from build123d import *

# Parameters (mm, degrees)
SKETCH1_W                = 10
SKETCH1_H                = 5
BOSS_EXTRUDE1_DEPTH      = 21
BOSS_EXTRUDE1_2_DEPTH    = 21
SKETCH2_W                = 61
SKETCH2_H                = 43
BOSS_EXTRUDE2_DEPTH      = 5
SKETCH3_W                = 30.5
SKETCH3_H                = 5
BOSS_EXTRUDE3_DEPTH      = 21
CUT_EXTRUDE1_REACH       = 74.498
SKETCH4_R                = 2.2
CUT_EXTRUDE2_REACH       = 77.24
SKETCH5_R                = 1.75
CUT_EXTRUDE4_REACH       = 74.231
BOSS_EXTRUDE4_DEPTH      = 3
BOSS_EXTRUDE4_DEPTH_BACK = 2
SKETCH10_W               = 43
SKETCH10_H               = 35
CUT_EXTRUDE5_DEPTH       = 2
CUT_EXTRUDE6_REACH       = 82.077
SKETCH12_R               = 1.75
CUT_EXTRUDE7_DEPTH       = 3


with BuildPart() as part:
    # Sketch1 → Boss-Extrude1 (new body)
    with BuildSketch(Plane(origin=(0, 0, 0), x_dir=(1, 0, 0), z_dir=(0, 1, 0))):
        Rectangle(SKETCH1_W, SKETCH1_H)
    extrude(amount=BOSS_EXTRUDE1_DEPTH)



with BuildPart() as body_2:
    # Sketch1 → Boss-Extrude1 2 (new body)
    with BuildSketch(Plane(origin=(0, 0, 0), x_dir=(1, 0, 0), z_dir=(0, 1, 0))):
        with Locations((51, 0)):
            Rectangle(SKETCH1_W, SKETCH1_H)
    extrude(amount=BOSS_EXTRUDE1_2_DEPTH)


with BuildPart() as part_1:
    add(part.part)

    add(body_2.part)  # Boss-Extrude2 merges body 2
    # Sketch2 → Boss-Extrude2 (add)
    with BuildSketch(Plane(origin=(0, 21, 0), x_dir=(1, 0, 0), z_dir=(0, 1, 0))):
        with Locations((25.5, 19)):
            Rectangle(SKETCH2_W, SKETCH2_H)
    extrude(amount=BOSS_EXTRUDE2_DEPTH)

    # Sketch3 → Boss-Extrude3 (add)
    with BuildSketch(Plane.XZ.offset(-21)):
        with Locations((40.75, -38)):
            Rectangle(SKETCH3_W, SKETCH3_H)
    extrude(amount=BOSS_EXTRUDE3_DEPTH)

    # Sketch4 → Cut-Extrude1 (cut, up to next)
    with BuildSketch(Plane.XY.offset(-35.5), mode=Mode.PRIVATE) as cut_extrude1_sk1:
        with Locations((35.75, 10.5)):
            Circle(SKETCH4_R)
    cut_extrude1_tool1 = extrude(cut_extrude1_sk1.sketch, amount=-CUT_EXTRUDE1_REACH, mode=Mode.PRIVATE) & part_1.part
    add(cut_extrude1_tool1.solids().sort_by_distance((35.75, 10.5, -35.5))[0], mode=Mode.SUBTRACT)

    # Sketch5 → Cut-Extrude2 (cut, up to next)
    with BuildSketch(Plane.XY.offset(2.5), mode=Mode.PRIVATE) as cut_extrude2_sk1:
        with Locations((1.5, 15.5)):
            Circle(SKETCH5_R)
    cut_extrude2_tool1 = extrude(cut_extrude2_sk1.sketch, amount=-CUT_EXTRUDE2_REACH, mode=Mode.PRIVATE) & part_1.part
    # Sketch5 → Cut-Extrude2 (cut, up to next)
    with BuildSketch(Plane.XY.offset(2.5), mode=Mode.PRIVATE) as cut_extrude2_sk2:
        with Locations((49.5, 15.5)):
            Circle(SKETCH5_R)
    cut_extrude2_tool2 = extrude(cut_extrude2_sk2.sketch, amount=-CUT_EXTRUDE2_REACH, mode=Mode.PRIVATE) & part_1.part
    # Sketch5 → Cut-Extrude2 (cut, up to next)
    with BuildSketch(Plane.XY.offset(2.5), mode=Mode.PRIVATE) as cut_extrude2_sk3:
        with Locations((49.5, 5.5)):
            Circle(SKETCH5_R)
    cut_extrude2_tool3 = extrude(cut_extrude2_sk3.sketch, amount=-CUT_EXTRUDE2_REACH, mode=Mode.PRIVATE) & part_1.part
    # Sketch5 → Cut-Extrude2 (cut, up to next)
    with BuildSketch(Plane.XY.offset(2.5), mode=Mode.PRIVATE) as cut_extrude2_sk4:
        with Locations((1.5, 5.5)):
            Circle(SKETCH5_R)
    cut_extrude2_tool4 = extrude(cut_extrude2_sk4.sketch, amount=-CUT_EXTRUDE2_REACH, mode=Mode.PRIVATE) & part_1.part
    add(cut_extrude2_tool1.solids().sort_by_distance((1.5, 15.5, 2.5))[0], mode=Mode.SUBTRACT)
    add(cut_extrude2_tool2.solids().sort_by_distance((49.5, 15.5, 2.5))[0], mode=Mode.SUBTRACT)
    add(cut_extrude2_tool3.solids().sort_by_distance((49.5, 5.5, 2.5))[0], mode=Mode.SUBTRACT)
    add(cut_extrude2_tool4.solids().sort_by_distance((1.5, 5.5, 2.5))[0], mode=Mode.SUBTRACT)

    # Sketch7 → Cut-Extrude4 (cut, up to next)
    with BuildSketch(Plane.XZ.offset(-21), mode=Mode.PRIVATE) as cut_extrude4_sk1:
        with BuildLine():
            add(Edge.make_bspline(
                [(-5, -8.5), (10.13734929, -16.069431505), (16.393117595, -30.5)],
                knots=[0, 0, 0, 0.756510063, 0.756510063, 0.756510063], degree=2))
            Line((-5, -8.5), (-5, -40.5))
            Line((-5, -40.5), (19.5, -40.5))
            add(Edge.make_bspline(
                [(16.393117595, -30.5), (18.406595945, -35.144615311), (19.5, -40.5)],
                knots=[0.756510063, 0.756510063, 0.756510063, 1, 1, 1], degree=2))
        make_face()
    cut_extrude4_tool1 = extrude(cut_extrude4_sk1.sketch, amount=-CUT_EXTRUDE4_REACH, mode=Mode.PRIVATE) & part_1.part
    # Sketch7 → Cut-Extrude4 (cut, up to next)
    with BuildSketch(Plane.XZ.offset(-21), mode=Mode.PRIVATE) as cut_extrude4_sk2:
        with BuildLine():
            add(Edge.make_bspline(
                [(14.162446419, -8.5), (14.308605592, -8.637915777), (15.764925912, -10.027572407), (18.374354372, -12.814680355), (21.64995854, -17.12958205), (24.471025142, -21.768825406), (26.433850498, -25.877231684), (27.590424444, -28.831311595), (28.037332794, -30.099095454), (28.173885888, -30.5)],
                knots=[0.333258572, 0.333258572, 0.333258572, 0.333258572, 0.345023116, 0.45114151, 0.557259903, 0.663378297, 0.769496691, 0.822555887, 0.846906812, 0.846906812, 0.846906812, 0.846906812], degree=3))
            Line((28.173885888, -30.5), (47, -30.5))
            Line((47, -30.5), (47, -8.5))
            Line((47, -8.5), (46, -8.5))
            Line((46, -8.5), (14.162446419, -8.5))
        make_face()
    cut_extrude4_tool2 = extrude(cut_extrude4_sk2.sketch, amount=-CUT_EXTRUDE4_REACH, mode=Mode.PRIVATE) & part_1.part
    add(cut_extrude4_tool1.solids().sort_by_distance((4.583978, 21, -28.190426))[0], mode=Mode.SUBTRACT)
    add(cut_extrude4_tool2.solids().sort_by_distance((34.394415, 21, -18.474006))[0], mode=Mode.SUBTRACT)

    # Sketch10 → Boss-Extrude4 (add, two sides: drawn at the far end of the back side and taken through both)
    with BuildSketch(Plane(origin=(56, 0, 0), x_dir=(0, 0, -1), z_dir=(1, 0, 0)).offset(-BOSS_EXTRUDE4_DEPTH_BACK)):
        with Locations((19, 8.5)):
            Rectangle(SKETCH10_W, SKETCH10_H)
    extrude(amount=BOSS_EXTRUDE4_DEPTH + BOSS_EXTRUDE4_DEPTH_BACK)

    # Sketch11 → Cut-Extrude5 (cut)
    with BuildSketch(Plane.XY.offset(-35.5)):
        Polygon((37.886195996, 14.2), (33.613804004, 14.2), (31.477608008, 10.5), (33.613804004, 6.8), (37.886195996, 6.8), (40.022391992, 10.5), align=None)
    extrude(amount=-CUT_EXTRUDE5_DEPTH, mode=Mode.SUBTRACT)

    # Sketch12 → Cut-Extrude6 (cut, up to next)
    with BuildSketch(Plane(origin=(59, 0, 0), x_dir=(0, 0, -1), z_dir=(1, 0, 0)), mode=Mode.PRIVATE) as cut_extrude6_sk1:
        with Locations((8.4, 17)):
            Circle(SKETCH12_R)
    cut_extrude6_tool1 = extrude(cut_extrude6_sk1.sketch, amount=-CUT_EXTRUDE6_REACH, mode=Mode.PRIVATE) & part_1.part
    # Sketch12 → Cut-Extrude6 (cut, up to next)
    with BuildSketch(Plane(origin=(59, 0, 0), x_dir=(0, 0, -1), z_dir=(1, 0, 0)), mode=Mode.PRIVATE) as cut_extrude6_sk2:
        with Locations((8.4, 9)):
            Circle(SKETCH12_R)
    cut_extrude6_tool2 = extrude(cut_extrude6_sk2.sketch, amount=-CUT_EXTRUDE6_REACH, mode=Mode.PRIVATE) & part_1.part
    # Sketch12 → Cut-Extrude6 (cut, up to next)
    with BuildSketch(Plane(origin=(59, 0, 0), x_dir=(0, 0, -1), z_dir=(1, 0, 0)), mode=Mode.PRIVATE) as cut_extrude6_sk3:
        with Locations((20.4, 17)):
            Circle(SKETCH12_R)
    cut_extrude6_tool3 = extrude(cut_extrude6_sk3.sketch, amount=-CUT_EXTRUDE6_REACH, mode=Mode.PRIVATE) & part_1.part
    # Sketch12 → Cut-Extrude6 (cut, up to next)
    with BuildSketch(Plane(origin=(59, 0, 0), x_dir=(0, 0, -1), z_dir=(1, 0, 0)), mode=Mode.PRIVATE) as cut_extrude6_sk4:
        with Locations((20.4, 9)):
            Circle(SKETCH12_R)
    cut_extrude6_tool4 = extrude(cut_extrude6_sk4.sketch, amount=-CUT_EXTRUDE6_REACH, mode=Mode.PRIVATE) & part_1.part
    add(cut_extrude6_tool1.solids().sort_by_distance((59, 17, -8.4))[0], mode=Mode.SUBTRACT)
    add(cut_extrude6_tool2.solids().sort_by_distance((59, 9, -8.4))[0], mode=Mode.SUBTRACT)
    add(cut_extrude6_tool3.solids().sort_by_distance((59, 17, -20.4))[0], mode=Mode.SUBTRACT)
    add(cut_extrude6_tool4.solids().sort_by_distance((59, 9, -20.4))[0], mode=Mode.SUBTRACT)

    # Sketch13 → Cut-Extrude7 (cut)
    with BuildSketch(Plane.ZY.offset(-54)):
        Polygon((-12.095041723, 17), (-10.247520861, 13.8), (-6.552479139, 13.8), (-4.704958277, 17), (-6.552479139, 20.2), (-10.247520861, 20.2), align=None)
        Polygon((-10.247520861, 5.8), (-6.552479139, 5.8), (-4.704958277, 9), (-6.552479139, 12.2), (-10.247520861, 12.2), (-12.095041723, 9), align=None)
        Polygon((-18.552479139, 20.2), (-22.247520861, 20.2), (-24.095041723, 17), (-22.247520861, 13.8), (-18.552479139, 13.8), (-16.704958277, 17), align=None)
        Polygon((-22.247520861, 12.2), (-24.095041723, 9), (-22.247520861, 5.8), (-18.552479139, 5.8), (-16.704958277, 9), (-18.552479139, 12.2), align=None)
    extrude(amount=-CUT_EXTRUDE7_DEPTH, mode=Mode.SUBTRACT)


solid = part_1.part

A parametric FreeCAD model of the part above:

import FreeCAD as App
import Part
import Sketcher
from FreeCAD import Vector
Q = App.Units.Quantity

doc = App.newDocument("Part")
params = doc.addObject("Spreadsheet::Sheet", "Params")
for row, (alias, value) in enumerate([
    ("sketch1_width", "10 mm"),
    ("sketch1_height", "5 mm"),
    ("pad1_length", "21 mm"),
    ("sketch2_width", "10 mm"),
    ("sketch2_height", "5 mm"),
    ("pad2_length", "21 mm"),
    ("sketch3_width", "61 mm"),
    ("sketch3_height", "43 mm"),
    ("pad3_length", "5 mm"),
    ("sketch4_height", "5 mm"),
    ("sketch4_width", "30.5 mm"),
    ("pad4_length", "21 mm"),
    ("sketch5_diameter", "4.4 mm"),
    ("sketch6_diameter", "3.5 mm"),
    ("sketch7_diameter", "3.5 mm"),
    ("sketch8_diameter", "3.5 mm"),
    ("sketch9_diameter", "3.5 mm"),
    ("sketch12_width", "35 mm"),
    ("sketch12_height", "43 mm"),
    ("pad5_length", "3 mm"),
    ("pad5_length2", "2 mm"),
    ("pocket8_length", "2 mm"),
    ("sketch14_diameter", "3.5 mm"),
    ("sketch15_diameter", "3.5 mm"),
    ("sketch16_diameter", "3.5 mm"),
    ("sketch17_diameter", "3.5 mm"),
    ("pocket13_length", "3 mm"),
], start=1):
    params.set(f"A{row}", alias)
    params.set(f"B{row}", "=" + value)
    params.setAlias(f"B{row}", alias)

body = doc.addObject("PartDesign::Body", "Body")

sketch1 = doc.addObject("Sketcher::SketchObject", "Sketch")
body.addObject(sketch1)
sketch1.AttachmentSupport = (doc.XZ_Plane, [""])
sketch1.MapMode = "FlatFace"
sketch1.addGeometry(Part.LineSegment(Vector(-5, -2, 0), Vector(-5, 2, 0)), False)
sketch1.addGeometry(Part.LineSegment(Vector(-5, 2, 0), Vector(5, 2, 0)), False)
sketch1.addGeometry(Part.LineSegment(Vector(5, 2, 0), Vector(5, -2, 0)), False)
sketch1.addGeometry(Part.LineSegment(Vector(5, -2, 0), Vector(-5, -2, 0)), False)
sketch1.addConstraint(Sketcher.Constraint("Coincident", 0, 2, 1, 1))
sketch1.addConstraint(Sketcher.Constraint("Coincident", 1, 2, 2, 1))
sketch1.addConstraint(Sketcher.Constraint("Coincident", 2, 2, 3, 1))
sketch1.addConstraint(Sketcher.Constraint("Coincident", 3, 2, 0, 1))
sketch1.addConstraint(Sketcher.Constraint("Vertical", 0))
sketch1.addConstraint(Sketcher.Constraint("Horizontal", 1))
sketch1.addConstraint(Sketcher.Constraint("Vertical", 2))
sketch1.addConstraint(Sketcher.Constraint("Horizontal", 3))
sketch1.addConstraint(Sketcher.Constraint("Symmetric", 0, 2, 2, 2, -1, 1))
sketch1.addConstraint(Sketcher.Constraint("DistanceX", 1, 1, 1, 2, 10.0))
sketch1.addConstraint(Sketcher.Constraint("DistanceY", 0, 1, 0, 2, 5.0))
sketch1.setExpression("Constraints[9]", "Params.sketch1_width")
sketch1.setExpression("Constraints[10]", "Params.sketch1_height")
pad1 = doc.addObject("PartDesign::Pad", "Pad")
body.addObject(pad1)
pad1.Profile = sketch1
pad1.setExpression("Length", "Params.pad1_length")
pad1.Reversed = True
body2 = doc.addObject("PartDesign::Body", "Body001")

sketch2 = doc.addObject("Sketcher::SketchObject", "Sketch001")
body2.addObject(sketch2)
sketch2.AttachmentSupport = (doc.getObject("XZ_Plane001"), [""])
sketch2.MapMode = "FlatFace"
sketch2.addGeometry(Part.LineSegment(Vector(46, -2, 0), Vector(46, 2, 0)), False)
sketch2.addGeometry(Part.LineSegment(Vector(46, 2, 0), Vector(56, 2, 0)), False)
sketch2.addGeometry(Part.LineSegment(Vector(56, 2, 0), Vector(56, -2, 0)), False)
sketch2.addGeometry(Part.LineSegment(Vector(56, -2, 0), Vector(46, -2, 0)), False)
sketch2.addConstraint(Sketcher.Constraint("Coincident", 0, 2, 1, 1))
sketch2.addConstraint(Sketcher.Constraint("Coincident", 1, 2, 2, 1))
sketch2.addConstraint(Sketcher.Constraint("Coincident", 2, 2, 3, 1))
sketch2.addConstraint(Sketcher.Constraint("Coincident", 3, 2, 0, 1))
sketch2.addConstraint(Sketcher.Constraint("Vertical", 0))
sketch2.addConstraint(Sketcher.Constraint("Horizontal", 1))
sketch2.addConstraint(Sketcher.Constraint("Vertical", 2))
sketch2.addConstraint(Sketcher.Constraint("Horizontal", 3))
sketch2.addConstraint(Sketcher.Constraint("DistanceX", 1, 1, 1, 2, 10.0))
sketch2.addConstraint(Sketcher.Constraint("DistanceY", 0, 1, 0, 2, 5.0))
sketch2.addConstraint(Sketcher.Constraint("DistanceX", -1, 1, 0, 2, 46.0))
sketch2.addConstraint(Sketcher.Constraint("DistanceY", -1, 1, 0, 2, 2.5))
sketch2.setExpression("Constraints[8]", "Params.sketch2_width")
sketch2.setExpression("Constraints[9]", "Params.sketch2_height")
pad2 = doc.addObject("PartDesign::Pad", "Pad001")
body2.addObject(pad2)
pad2.Profile = sketch2
pad2.setExpression("Length", "Params.pad2_length")
pad2.Reversed = True
body.AllowCompound = True
doc.recompute()

boolean = doc.addObject("PartDesign::Boolean", "Boolean")
body.addObject(boolean)
boolean.Type = "Fuse"
boolean.addObjects([body2])

sketch3 = doc.addObject("Sketcher::SketchObject", "Sketch002")
body.addObject(sketch3)
sketch3.AttachmentSupport = (doc.XZ_Plane, [""])
sketch3.MapMode = "FlatFace"
sketch3.AttachmentOffset = App.Placement(Vector(0, 0, -21), App.Rotation())
sketch3.addGeometry(Part.LineSegment(Vector(-5, -40, 0), Vector(-5, 2, 0)), False)
sketch3.addGeometry(Part.LineSegment(Vector(-5, 2, 0), Vector(56, 2, 0)), False)
sketch3.addGeometry(Part.LineSegment(Vector(56, 2, 0), Vector(56, -40, 0)), False)
sketch3.addGeometry(Part.LineSegment(Vector(56, -40, 0), Vector(-5, -40, 0)), False)
sketch3.addConstraint(Sketcher.Constraint("Coincident", 0, 2, 1, 1))
sketch3.addConstraint(Sketcher.Constraint("Coincident", 1, 2, 2, 1))
sketch3.addConstraint(Sketcher.Constraint("Coincident", 2, 2, 3, 1))
sketch3.addConstraint(Sketcher.Constraint("Coincident", 3, 2, 0, 1))
sketch3.addConstraint(Sketcher.Constraint("Vertical", 0))
sketch3.addConstraint(Sketcher.Constraint("Horizontal", 1))
sketch3.addConstraint(Sketcher.Constraint("Vertical", 2))
sketch3.addConstraint(Sketcher.Constraint("Horizontal", 3))
sketch3.addConstraint(Sketcher.Constraint("DistanceX", 1, 1, 1, 2, 61.0))
sketch3.addConstraint(Sketcher.Constraint("DistanceY", 0, 1, 0, 2, 43.0))
sketch3.addConstraint(Sketcher.Constraint("DistanceX", 0, 2, -1, 1, 5.0))
sketch3.addConstraint(Sketcher.Constraint("DistanceY", -1, 1, 0, 2, 2.5))
sketch3.setExpression("Constraints[8]", "Params.sketch3_width")
sketch3.setExpression("Constraints[9]", "Params.sketch3_height")
pad3 = doc.addObject("PartDesign::Pad", "Pad002")
body.addObject(pad3)
pad3.Profile = sketch3
pad3.setExpression("Length", "Params.pad3_length")
pad3.Reversed = True

sketch4 = doc.addObject("Sketcher::SketchObject", "Sketch003")
body.addObject(sketch4)
sketch4.AttachmentSupport = (doc.XZ_Plane, [""])
sketch4.MapMode = "FlatFace"
sketch4.AttachmentOffset = App.Placement(Vector(0, 0, -21), App.Rotation())
sketch4.addGeometry(Part.LineSegment(Vector(26, -36, 0), Vector(26, -40, 0)), False)
sketch4.addGeometry(Part.LineSegment(Vector(26, -40, 0), Vector(56, -40, 0)), False)
sketch4.addGeometry(Part.LineSegment(Vector(56, -40, 0), Vector(56, -36, 0)), False)
sketch4.addGeometry(Part.LineSegment(Vector(56, -36, 0), Vector(26, -36, 0)), False)
sketch4.addConstraint(Sketcher.Constraint("Coincident", 0, 2, 1, 1))
sketch4.addConstraint(Sketcher.Constraint("Coincident", 1, 2, 2, 1))
sketch4.addConstraint(Sketcher.Constraint("Coincident", 2, 2, 3, 1))
sketch4.addConstraint(Sketcher.Constraint("Coincident", 3, 2, 0, 1))
sketch4.addConstraint(Sketcher.Constraint("Vertical", 0))
sketch4.addConstraint(Sketcher.Constraint("Horizontal", 1))
sketch4.addConstraint(Sketcher.Constraint("Vertical", 2))
sketch4.addConstraint(Sketcher.Constraint("Horizontal", 3))
sketch4.addConstraint(Sketcher.Constraint("DistanceY", 0, 2, 0, 1, 5.0))
sketch4.addConstraint(Sketcher.Constraint("DistanceX", 1, 1, 1, 2, 30.5))
sketch4.addConstraint(Sketcher.Constraint("DistanceX", -1, 1, 1, 2, 56.0))
sketch4.addConstraint(Sketcher.Constraint("DistanceY", 0, 2, -1, 1, 40.5))
sketch4.setExpression("Constraints[8]", "Params.sketch4_height")
sketch4.setExpression("Constraints[9]", "Params.sketch4_width")
pad4 = doc.addObject("PartDesign::Pad", "Pad003")
body.addObject(pad4)
pad4.Profile = sketch4
pad4.setExpression("Length", "Params.pad4_length")

sketch5 = doc.addObject("Sketcher::SketchObject", "Sketch004")
body.addObject(sketch5)
sketch5.AttachmentSupport = (doc.XY_Plane, [""])
sketch5.MapMode = "FlatFace"
sketch5.AttachmentOffset = App.Placement(Vector(0, 0, -35.5), App.Rotation())
sketch5.addGeometry(Part.Circle(Vector(35.8, 10.5, 0), Vector(0, 0, 1), 2.2), False)
sketch5.addConstraint(Sketcher.Constraint("Diameter", 0, 4.4))
sketch5.addConstraint(Sketcher.Constraint("DistanceY", -1, 1, 0, 3, 10.5))
sketch5.addConstraint(Sketcher.Constraint("DistanceX", -1, 1, 0, 3, 35.75))
sketch5.setExpression("Constraints[0]", "Params.sketch5_diameter")
pocket1 = doc.addObject("PartDesign::Pocket", "Pocket")
body.addObject(pocket1)
pocket1.Profile = sketch5
pocket1.Type = "UpToFirst"

sketch6 = doc.addObject("Sketcher::SketchObject", "Sketch005")
body.addObject(sketch6)
sketch6.AttachmentSupport = (doc.XY_Plane, [""])
sketch6.MapMode = "FlatFace"
sketch6.AttachmentOffset = App.Placement(Vector(0, 0, 2.5), App.Rotation())
sketch6.addGeometry(Part.Circle(Vector(1.5, 15.5, 0), Vector(0, 0, 1), 1.8), False)
sketch6.addConstraint(Sketcher.Constraint("Diameter", 0, 3.5))
sketch6.addConstraint(Sketcher.Constraint("DistanceX", -1, 1, 0, 3, 1.5))
sketch6.addConstraint(Sketcher.Constraint("DistanceY", -1, 1, 0, 3, 15.5))
sketch6.setExpression("Constraints[0]", "Params.sketch6_diameter")
pocket2 = doc.addObject("PartDesign::Pocket", "Pocket001")
body.addObject(pocket2)
pocket2.Profile = sketch6
pocket2.Type = "UpToFirst"

sketch7 = doc.addObject("Sketcher::SketchObject", "Sketch006")
body.addObject(sketch7)
sketch7.AttachmentSupport = (doc.XY_Plane, [""])
sketch7.MapMode = "FlatFace"
sketch7.AttachmentOffset = App.Placement(Vector(0, 0, 2.5), App.Rotation())
sketch7.addGeometry(Part.Circle(Vector(49.5, 15.5, 0), Vector(0, 0, 1), 1.8), False)
sketch7.addConstraint(Sketcher.Constraint("Diameter", 0, 3.5))
sketch7.addConstraint(Sketcher.Constraint("DistanceX", -1, 1, 0, 3, 49.5))
sketch7.addConstraint(Sketcher.Constraint("DistanceY", -1, 1, 0, 3, 15.5))
sketch7.setExpression("Constraints[0]", "Params.sketch7_diameter")
pocket3 = doc.addObject("PartDesign::Pocket", "Pocket002")
body.addObject(pocket3)
pocket3.Profile = sketch7
pocket3.Type = "UpToFirst"

sketch8 = doc.addObject("Sketcher::SketchObject", "Sketch007")
body.addObject(sketch8)
sketch8.AttachmentSupport = (doc.XY_Plane, [""])
sketch8.MapMode = "FlatFace"
sketch8.AttachmentOffset = App.Placement(Vector(0, 0, 2.5), App.Rotation())
sketch8.addGeometry(Part.Circle(Vector(49.5, 5.5, 0), Vector(0, 0, 1), 1.8), False)
sketch8.addConstraint(Sketcher.Constraint("Diameter", 0, 3.5))
sketch8.addConstraint(Sketcher.Constraint("DistanceX", -1, 1, 0, 3, 49.5))
sketch8.addConstraint(Sketcher.Constraint("DistanceY", -1, 1, 0, 3, 5.5))
sketch8.setExpression("Constraints[0]", "Params.sketch8_diameter")
pocket4 = doc.addObject("PartDesign::Pocket", "Pocket003")
body.addObject(pocket4)
pocket4.Profile = sketch8
pocket4.Type = "UpToFirst"

sketch9 = doc.addObject("Sketcher::SketchObject", "Sketch008")
body.addObject(sketch9)
sketch9.AttachmentSupport = (doc.XY_Plane, [""])
sketch9.MapMode = "FlatFace"
sketch9.AttachmentOffset = App.Placement(Vector(0, 0, 2.5), App.Rotation())
sketch9.addGeometry(Part.Circle(Vector(1.5, 5.5, 0), Vector(0, 0, 1), 1.8), False)
sketch9.addConstraint(Sketcher.Constraint("Diameter", 0, 3.5))
sketch9.addConstraint(Sketcher.Constraint("DistanceX", -1, 1, 0, 3, 1.5))
sketch9.addConstraint(Sketcher.Constraint("DistanceY", -1, 1, 0, 3, 5.5))
sketch9.setExpression("Constraints[0]", "Params.sketch9_diameter")
pocket5 = doc.addObject("PartDesign::Pocket", "Pocket004")
body.addObject(pocket5)
pocket5.Profile = sketch9
pocket5.Type = "UpToFirst"

sketch10 = doc.addObject("Sketcher::SketchObject", "Sketch009")
body.addObject(sketch10)
sketch10.AttachmentSupport = (doc.XZ_Plane, [""])
sketch10.MapMode = "FlatFace"
sketch10.AttachmentOffset = App.Placement(Vector(0, 0, -21), App.Rotation())
sketch10.addGeometry(Part.BSplineCurve([Vector(-5, -8.5, 0), Vector(10.137349, -16.069432, 0), Vector(16.393118, -30.5, 0)], [3, 3], [0, 0.756510063], False, 2, [1, 1, 1], False), False)
sketch10.addGeometry(Part.LineSegment(Vector(-5, -8.5, 0), Vector(-5, -40.5, 0)), False)
sketch10.addGeometry(Part.LineSegment(Vector(-5, -40.5, 0), Vector(19.5, -40.5, 0)), False)
sketch10.addGeometry(Part.BSplineCurve([Vector(16.393118, -30.5, 0), Vector(18.406596, -35.144615, 0), Vector(19.5, -40.5, 0)], [3, 3], [0.756510063, 1], False, 2, [1, 1, 1], False), False)
sketch10.addConstraint(Sketcher.Constraint("Block", 0))
sketch10.addConstraint(Sketcher.Constraint("Block", 3))
sketch10.addConstraint(Sketcher.Constraint("Coincident", 0, 1, 1, 1))
sketch10.addConstraint(Sketcher.Constraint("Coincident", 1, 2, 2, 1))
sketch10.addConstraint(Sketcher.Constraint("Coincident", 2, 2, 3, 2))
sketch10.addConstraint(Sketcher.Constraint("Vertical", 1))
sketch10.addConstraint(Sketcher.Constraint("Horizontal", 2))
pocket6 = doc.addObject("PartDesign::Pocket", "Pocket005")
body.addObject(pocket6)
pocket6.Profile = sketch10
pocket6.Type = "UpToFirst"

sketch11 = doc.addObject("Sketcher::SketchObject", "Sketch010")
body.addObject(sketch11)
sketch11.AttachmentSupport = (doc.XZ_Plane, [""])
sketch11.MapMode = "FlatFace"
sketch11.AttachmentOffset = App.Placement(Vector(0, 0, -21), App.Rotation())
sketch11.addGeometry(Part.BSplineCurve([Vector(14.162446, -8.5, 0), Vector(14.308606, -8.637916, 0), Vector(15.764926, -10.027572, 0), Vector(18.374354, -12.81468, 0), Vector(21.649959, -17.129582, 0), Vector(24.471025, -21.768825, 0), Vector(26.43385, -25.877232, 0), Vector(27.590424, -28.831312, 0), Vector(28.037333, -30.099095, 0), Vector(28.173886, -30.5, 0)], [4, 1, 1, 1, 1, 1, 1, 4], [0.333258572, 0.345023116, 0.45114151, 0.557259903, 0.663378297, 0.769496691, 0.822555887, 0.846906812], False, 3, [1, 1, 1, 1, 1, 1, 1, 1, 1, 1], False), False)
sketch11.addGeometry(Part.LineSegment(Vector(28.173886, -30.5, 0), Vector(47, -30.5, 0)), False)
sketch11.addGeometry(Part.LineSegment(Vector(47, -30.5, 0), Vector(47, -8.5, 0)), False)
sketch11.addGeometry(Part.LineSegment(Vector(47, -8.5, 0), Vector(14.162446, -8.5, 0)), False)
sketch11.addConstraint(Sketcher.Constraint("Block", 0))
sketch11.addConstraint(Sketcher.Constraint("Coincident", 0, 2, 1, 1))
sketch11.addConstraint(Sketcher.Constraint("Coincident", 1, 2, 2, 1))
sketch11.addConstraint(Sketcher.Constraint("Coincident", 2, 2, 3, 1))
sketch11.addConstraint(Sketcher.Constraint("Coincident", 3, 2, 0, 1))
sketch11.addConstraint(Sketcher.Constraint("Horizontal", 1))
sketch11.addConstraint(Sketcher.Constraint("Vertical", 2))
sketch11.addConstraint(Sketcher.Constraint("Horizontal", 3))
sketch11.addConstraint(Sketcher.Constraint("DistanceX", -1, 1, 1, 2, 47.0))
pocket7 = doc.addObject("PartDesign::Pocket", "Pocket006")
body.addObject(pocket7)
pocket7.Profile = sketch11
pocket7.Type = "UpToFirst"

sketch12 = doc.addObject("Sketcher::SketchObject", "Sketch011")
body.addObject(sketch12)
sketch12.AttachmentSupport = (doc.YZ_Plane, [""])
sketch12.MapMode = "FlatFace"
sketch12.AttachmentOffset = App.Placement(Vector(0, 0, 56), App.Rotation())
sketch12.addGeometry(Part.LineSegment(Vector(26, 2, 0), Vector(-9, 2, 0)), False)
sketch12.addGeometry(Part.LineSegment(Vector(-9, 2, 0), Vector(-9, -40, 0)), False)
sketch12.addGeometry(Part.LineSegment(Vector(-9, -40, 0), Vector(26, -40, 0)), False)
sketch12.addGeometry(Part.LineSegment(Vector(26, -40, 0), Vector(26, 2, 0)), False)
sketch12.addConstraint(Sketcher.Constraint("Coincident", 0, 2, 1, 1))
sketch12.addConstraint(Sketcher.Constraint("Coincident", 1, 2, 2, 1))
sketch12.addConstraint(Sketcher.Constraint("Coincident", 2, 2, 3, 1))
sketch12.addConstraint(Sketcher.Constraint("Coincident", 3, 2, 0, 1))
sketch12.addConstraint(Sketcher.Constraint("Horizontal", 0))
sketch12.addConstraint(Sketcher.Constraint("Vertical", 1))
sketch12.addConstraint(Sketcher.Constraint("Horizontal", 2))
sketch12.addConstraint(Sketcher.Constraint("Vertical", 3))
sketch12.addConstraint(Sketcher.Constraint("DistanceX", 0, 2, 0, 1, 35.0))
sketch12.addConstraint(Sketcher.Constraint("DistanceY", 1, 2, 1, 1, 43.0))
sketch12.addConstraint(Sketcher.Constraint("DistanceX", 0, 2, -1, 1, 9.0))
sketch12.addConstraint(Sketcher.Constraint("DistanceY", -1, 1, 0, 2, 2.5))
sketch12.setExpression("Constraints[8]", "Params.sketch12_width")
sketch12.setExpression("Constraints[9]", "Params.sketch12_height")
pad5 = doc.addObject("PartDesign::Pad", "Pad004")
body.addObject(pad5)
pad5.Profile = sketch12
pad5.Type = "TwoLengths"
pad5.setExpression("Length", "Params.pad5_length")
pad5.setExpression("Length2", "Params.pad5_length2")

sketch13 = doc.addObject("Sketcher::SketchObject", "Sketch012")
body.addObject(sketch13)
sketch13.AttachmentSupport = (doc.XY_Plane, [""])
sketch13.MapMode = "FlatFace"
sketch13.AttachmentOffset = App.Placement(Vector(0, 0, -35.5), App.Rotation())
sketch13.addGeometry(Part.LineSegment(Vector(37.9, 14.2, 0), Vector(33.6, 14.2, 0)), False)
sketch13.addGeometry(Part.LineSegment(Vector(33.6, 14.2, 0), Vector(31.5, 10.5, 0)), False)
sketch13.addGeometry(Part.LineSegment(Vector(31.5, 10.5, 0), Vector(33.6, 6.8, 0)), False)
sketch13.addGeometry(Part.LineSegment(Vector(33.6, 6.8, 0), Vector(37.9, 6.8, 0)), False)
sketch13.addGeometry(Part.LineSegment(Vector(37.9, 6.8, 0), Vector(40, 10.5, 0)), False)
sketch13.addGeometry(Part.LineSegment(Vector(40, 10.5, 0), Vector(37.9, 14.2, 0)), False)
sketch13.addConstraint(Sketcher.Constraint("Coincident", 0, 2, 1, 1))
sketch13.addConstraint(Sketcher.Constraint("Coincident", 1, 2, 2, 1))
sketch13.addConstraint(Sketcher.Constraint("Coincident", 2, 2, 3, 1))
sketch13.addConstraint(Sketcher.Constraint("Coincident", 3, 2, 4, 1))
sketch13.addConstraint(Sketcher.Constraint("Coincident", 4, 2, 5, 1))
sketch13.addConstraint(Sketcher.Constraint("Coincident", 5, 2, 0, 1))
sketch13.addConstraint(Sketcher.Constraint("Horizontal", 0))
sketch13.addConstraint(Sketcher.Constraint("Horizontal", 3))
sketch13.addConstraint(Sketcher.Constraint("Parallel", 1, 4))
sketch13.addConstraint(Sketcher.Constraint("Parallel", 2, 5))
sketch13.addConstraint(Sketcher.Constraint("Horizontal", 1, 2, 4, 2))
sketch13.addConstraint(Sketcher.Constraint("Vertical", 0, 2, 2, 2))
sketch13.addConstraint(Sketcher.Constraint("Vertical", 3, 2, 5, 2))
sketch13.addConstraint(Sketcher.Constraint("Angle", 1, Q("-120 deg")))
sketch13.addConstraint(Sketcher.Constraint("DistanceY", -1, 1, 0, 2, 14.2))
sketch13.addConstraint(Sketcher.Constraint("DistanceY", -1, 1, 1, 2, 10.5))
sketch13.addConstraint(Sketcher.Constraint("DistanceX", 0, 2, 0, 1, 4.272392))
sketch13.addConstraint(Sketcher.Constraint("DistanceX", -1, 1, 1, 2, 31.477608))
pocket8 = doc.addObject("PartDesign::Pocket", "Pocket007")
body.addObject(pocket8)
pocket8.Profile = sketch13
pocket8.setExpression("Length", "Params.pocket8_length")

sketch14 = doc.addObject("Sketcher::SketchObject", "Sketch013")
body.addObject(sketch14)
sketch14.AttachmentSupport = (doc.YZ_Plane, [""])
sketch14.MapMode = "FlatFace"
sketch14.AttachmentOffset = App.Placement(Vector(0, 0, 59), App.Rotation())
sketch14.addGeometry(Part.Circle(Vector(17, -8.4, 0), Vector(0, 0, 1), 1.8), False)
sketch14.addConstraint(Sketcher.Constraint("Diameter", 0, 3.5))
sketch14.addConstraint(Sketcher.Constraint("DistanceX", -1, 1, 0, 3, 17.0))
sketch14.addConstraint(Sketcher.Constraint("DistanceY", 0, 3, -1, 1, 8.4))
sketch14.setExpression("Constraints[0]", "Params.sketch14_diameter")
pocket9 = doc.addObject("PartDesign::Pocket", "Pocket008")
body.addObject(pocket9)
pocket9.Profile = sketch14
pocket9.Type = "UpToFirst"

sketch15 = doc.addObject("Sketcher::SketchObject", "Sketch014")
body.addObject(sketch15)
sketch15.AttachmentSupport = (doc.YZ_Plane, [""])
sketch15.MapMode = "FlatFace"
sketch15.AttachmentOffset = App.Placement(Vector(0, 0, 59), App.Rotation())
sketch15.addGeometry(Part.Circle(Vector(9, -8.4, 0), Vector(0, 0, 1), 1.8), False)
sketch15.addConstraint(Sketcher.Constraint("Diameter", 0, 3.5))
sketch15.addConstraint(Sketcher.Constraint("DistanceX", -1, 1, 0, 3, 9.0))
sketch15.addConstraint(Sketcher.Constraint("DistanceY", 0, 3, -1, 1, 8.4))
sketch15.setExpression("Constraints[0]", "Params.sketch15_diameter")
pocket10 = doc.addObject("PartDesign::Pocket", "Pocket009")
body.addObject(pocket10)
pocket10.Profile = sketch15
pocket10.Type = "UpToFirst"

sketch16 = doc.addObject("Sketcher::SketchObject", "Sketch015")
body.addObject(sketch16)
sketch16.AttachmentSupport = (doc.YZ_Plane, [""])
sketch16.MapMode = "FlatFace"
sketch16.AttachmentOffset = App.Placement(Vector(0, 0, 59), App.Rotation())
sketch16.addGeometry(Part.Circle(Vector(17, -20.4, 0), Vector(0, 0, 1), 1.8), False)
sketch16.addConstraint(Sketcher.Constraint("Diameter", 0, 3.5))
sketch16.addConstraint(Sketcher.Constraint("DistanceX", -1, 1, 0, 3, 17.0))
sketch16.addConstraint(Sketcher.Constraint("DistanceY", 0, 3, -1, 1, 20.4))
sketch16.setExpression("Constraints[0]", "Params.sketch16_diameter")
pocket11 = doc.addObject("PartDesign::Pocket", "Pocket010")
body.addObject(pocket11)
pocket11.Profile = sketch16
pocket11.Type = "UpToFirst"

sketch17 = doc.addObject("Sketcher::SketchObject", "Sketch016")
body.addObject(sketch17)
sketch17.AttachmentSupport = (doc.YZ_Plane, [""])
sketch17.MapMode = "FlatFace"
sketch17.AttachmentOffset = App.Placement(Vector(0, 0, 59), App.Rotation())
sketch17.addGeometry(Part.Circle(Vector(9, -20.4, 0), Vector(0, 0, 1), 1.8), False)
sketch17.addConstraint(Sketcher.Constraint("Diameter", 0, 3.5))
sketch17.addConstraint(Sketcher.Constraint("DistanceX", -1, 1, 0, 3, 9.0))
sketch17.addConstraint(Sketcher.Constraint("DistanceY", 0, 3, -1, 1, 20.4))
sketch17.setExpression("Constraints[0]", "Params.sketch17_diameter")
pocket12 = doc.addObject("PartDesign::Pocket", "Pocket011")
body.addObject(pocket12)
pocket12.Profile = sketch17
pocket12.Type = "UpToFirst"

sketch18 = doc.addObject("Sketcher::SketchObject", "Sketch017")
body.addObject(sketch18)
sketch18.AttachmentSupport = (doc.YZ_Plane, [""])
sketch18.MapMode = "FlatFace"
sketch18.AttachmentOffset = App.Placement(Vector(0, 0, 54), App.Rotation())
sketch18.addGeometry(Part.LineSegment(Vector(17, -12.1, 0), Vector(13.8, -10.2, 0)), False)
sketch18.addGeometry(Part.LineSegment(Vector(13.8, -10.2, 0), Vector(13.8, -6.6, 0)), False)
sketch18.addGeometry(Part.LineSegment(Vector(13.8, -6.6, 0), Vector(17, -4.7, 0)), False)
sketch18.addGeometry(Part.LineSegment(Vector(17, -4.7, 0), Vector(20.2, -6.6, 0)), False)
sketch18.addGeometry(Part.LineSegment(Vector(20.2, -6.6, 0), Vector(20.2, -10.2, 0)), False)
sketch18.addGeometry(Part.LineSegment(Vector(20.2, -10.2, 0), Vector(17, -12.1, 0)), False)
sketch18.addGeometry(Part.LineSegment(Vector(5.8, -10.2, 0), Vector(5.8, -6.6, 0)), False)
sketch18.addGeometry(Part.LineSegment(Vector(5.8, -6.6, 0), Vector(9, -4.7, 0)), False)
sketch18.addGeometry(Part.LineSegment(Vector(9, -4.7, 0), Vector(12.2, -6.6, 0)), False)
sketch18.addGeometry(Part.LineSegment(Vector(12.2, -6.6, 0), Vector(12.2, -10.2, 0)), False)
sketch18.addGeometry(Part.LineSegment(Vector(12.2, -10.2, 0), Vector(9, -12.1, 0)), False)
sketch18.addGeometry(Part.LineSegment(Vector(9, -12.1, 0), Vector(5.8, -10.2, 0)), False)
sketch18.addGeometry(Part.LineSegment(Vector(20.2, -18.6, 0), Vector(20.2, -22.2, 0)), False)
sketch18.addGeometry(Part.LineSegment(Vector(20.2, -22.2, 0), Vector(17, -24.1, 0)), False)
sketch18.addGeometry(Part.LineSegment(Vector(17, -24.1, 0), Vector(13.8, -22.2, 0)), False)
sketch18.addGeometry(Part.LineSegment(Vector(13.8, -22.2, 0), Vector(13.8, -18.6, 0)), False)
sketch18.addGeometry(Part.LineSegment(Vector(13.8, -18.6, 0), Vector(17, -16.7, 0)), False)
sketch18.addGeometry(Part.LineSegment(Vector(17, -16.7, 0), Vector(20.2, -18.6, 0)), False)
sketch18.addGeometry(Part.LineSegment(Vector(12.2, -22.2, 0), Vector(9, -24.1, 0)), False)
sketch18.addGeometry(Part.LineSegment(Vector(9, -24.1, 0), Vector(5.8, -22.2, 0)), False)
sketch18.addGeometry(Part.LineSegment(Vector(5.8, -22.2, 0), Vector(5.8, -18.6, 0)), False)
sketch18.addGeometry(Part.LineSegment(Vector(5.8, -18.6, 0), Vector(9, -16.7, 0)), False)
sketch18.addGeometry(Part.LineSegment(Vector(9, -16.7, 0), Vector(12.2, -18.6, 0)), False)
sketch18.addGeometry(Part.LineSegment(Vector(12.2, -18.6, 0), Vector(12.2, -22.2, 0)), False)
sketch18.addConstraint(Sketcher.Constraint("Coincident", 0, 2, 1, 1))
sketch18.addConstraint(Sketcher.Constraint("Coincident", 1, 2, 2, 1))
sketch18.addConstraint(Sketcher.Constraint("Coincident", 2, 2, 3, 1))
sketch18.addConstraint(Sketcher.Constraint("Coincident", 3, 2, 4, 1))
sketch18.addConstraint(Sketcher.Constraint("Coincident", 4, 2, 5, 1))
sketch18.addConstraint(Sketcher.Constraint("Coincident", 5, 2, 0, 1))
sketch18.addConstraint(Sketcher.Constraint("Coincident", 6, 2, 7, 1))
sketch18.addConstraint(Sketcher.Constraint("Coincident", 7, 2, 8, 1))
sketch18.addConstraint(Sketcher.Constraint("Coincident", 8, 2, 9, 1))
sketch18.addConstraint(Sketcher.Constraint("Coincident", 9, 2, 10, 1))
sketch18.addConstraint(Sketcher.Constraint("Coincident", 10, 2, 11, 1))
sketch18.addConstraint(Sketcher.Constraint("Coincident", 11, 2, 6, 1))
sketch18.addConstraint(Sketcher.Constraint("Coincident", 12, 2, 13, 1))
sketch18.addConstraint(Sketcher.Constraint("Coincident", 13, 2, 14, 1))
sketch18.addConstraint(Sketcher.Constraint("Coincident", 14, 2, 15, 1))
sketch18.addConstraint(Sketcher.Constraint("Coincident", 15, 2, 16, 1))
sketch18.addConstraint(Sketcher.Constraint("Coincident", 16, 2, 17, 1))
sketch18.addConstraint(Sketcher.Constraint("Coincident", 17, 2, 12, 1))
sketch18.addConstraint(Sketcher.Constraint("Coincident", 18, 2, 19, 1))
sketch18.addConstraint(Sketcher.Constraint("Coincident", 19, 2, 20, 1))
sketch18.addConstraint(Sketcher.Constraint("Coincident", 20, 2, 21, 1))
sketch18.addConstraint(Sketcher.Constraint("Coincident", 21, 2, 22, 1))
sketch18.addConstraint(Sketcher.Constraint("Coincident", 22, 2, 23, 1))
sketch18.addConstraint(Sketcher.Constraint("Coincident", 23, 2, 18, 1))
sketch18.addConstraint(Sketcher.Constraint("Vertical", 1))
sketch18.addConstraint(Sketcher.Constraint("Vertical", 4))
sketch18.addConstraint(Sketcher.Constraint("Vertical", 6))
sketch18.addConstraint(Sketcher.Constraint("Vertical", 9))
sketch18.addConstraint(Sketcher.Constraint("Vertical", 12))
sketch18.addConstraint(Sketcher.Constraint("Vertical", 15))
sketch18.addConstraint(Sketcher.Constraint("Vertical", 20))
sketch18.addConstraint(Sketcher.Constraint("Vertical", 23))
sketch18.addConstraint(Sketcher.Constraint("Parallel", 0, 3))
sketch18.addConstraint(Sketcher.Constraint("Parallel", 2, 5))
sketch18.addConstraint(Sketcher.Constraint("Parallel", 5, 7))
sketch18.addConstraint(Sketcher.Constraint("Parallel", 3, 8))
sketch18.addConstraint(Sketcher.Constraint("Parallel", 7, 10))
sketch18.addConstraint(Sketcher.Constraint("Parallel", 8, 11))
sketch18.addConstraint(Sketcher.Constraint("Parallel", 10, 13))
sketch18.addConstraint(Sketcher.Constraint("Parallel", 11, 14))
sketch18.addConstraint(Sketcher.Constraint("Parallel", 13, 16))
sketch18.addConstraint(Sketcher.Constraint("Parallel", 14, 17))
sketch18.addConstraint(Sketcher.Constraint("Parallel", 16, 18))
sketch18.addConstraint(Sketcher.Constraint("Parallel", 17, 19))
sketch18.addConstraint(Sketcher.Constraint("Parallel", 18, 21))
sketch18.addConstraint(Sketcher.Constraint("Parallel", 19, 22))
sketch18.addConstraint(Sketcher.Constraint("Horizontal", 1, 2, 3, 2))
sketch18.addConstraint(Sketcher.Constraint("Horizontal", 0, 2, 4, 2))
sketch18.addConstraint(Sketcher.Constraint("Horizontal", 3, 2, 6, 2))
sketch18.addConstraint(Sketcher.Constraint("Horizontal", 2, 2, 7, 2))
sketch18.addConstraint(Sketcher.Constraint("Horizontal", 6, 2, 8, 2))
sketch18.addConstraint(Sketcher.Constraint("Horizontal", 4, 2, 9, 2))
sketch18.addConstraint(Sketcher.Constraint("Horizontal", 5, 2, 10, 2))
sketch18.addConstraint(Sketcher.Constraint("Horizontal", 12, 2, 14, 2))
sketch18.addConstraint(Sketcher.Constraint("Horizontal", 15, 2, 17, 2))
sketch18.addConstraint(Sketcher.Constraint("Horizontal", 13, 2, 18, 2))
sketch18.addConstraint(Sketcher.Constraint("Horizontal", 14, 2, 19, 2))
sketch18.addConstraint(Sketcher.Constraint("Horizontal", 17, 2, 20, 2))
sketch18.addConstraint(Sketcher.Constraint("Horizontal", 16, 2, 21, 2))
sketch18.addConstraint(Sketcher.Constraint("Horizontal", 20, 2, 22, 2))
sketch18.addConstraint(Sketcher.Constraint("Vertical", 2, 2, 5, 2))
sketch18.addConstraint(Sketcher.Constraint("Vertical", 4, 2, 12, 2))
sketch18.addConstraint(Sketcher.Constraint("Vertical", 5, 2, 13, 2))
sketch18.addConstraint(Sketcher.Constraint("Vertical", 10, 2, 18, 2))
sketch18.addConstraint(Sketcher.Constraint("Equal", 9, 12))
sketch18.addConstraint(Sketcher.Constraint("Angle", 0, Q("150 deg")))
sketch18.addConstraint(Sketcher.Constraint("DistanceX", -1, 1, 2, 2, 17.0))
sketch18.addConstraint(Sketcher.Constraint("DistanceX", -1, 1, 7, 2, 9.0))
sketch18.addConstraint(Sketcher.Constraint("DistanceY", 12, 2, 4, 2, 12.0))
sketch18.addConstraint(Sketcher.Constraint("DistanceX", -1, 1, 0, 2, 13.8))
sketch18.addConstraint(Sketcher.Constraint("DistanceY", 1, 1, 1, 2, 3.695042))
sketch18.addConstraint(Sketcher.Constraint("DistanceY", 0, 2, -1, 1, 10.247521))
pocket13 = doc.addObject("PartDesign::Pocket", "Pocket012")
body.addObject(pocket13)
pocket13.Profile = sketch18
pocket13.setExpression("Length", "Params.pocket13_length")
pocket13.Reversed = True

doc.recompute()
